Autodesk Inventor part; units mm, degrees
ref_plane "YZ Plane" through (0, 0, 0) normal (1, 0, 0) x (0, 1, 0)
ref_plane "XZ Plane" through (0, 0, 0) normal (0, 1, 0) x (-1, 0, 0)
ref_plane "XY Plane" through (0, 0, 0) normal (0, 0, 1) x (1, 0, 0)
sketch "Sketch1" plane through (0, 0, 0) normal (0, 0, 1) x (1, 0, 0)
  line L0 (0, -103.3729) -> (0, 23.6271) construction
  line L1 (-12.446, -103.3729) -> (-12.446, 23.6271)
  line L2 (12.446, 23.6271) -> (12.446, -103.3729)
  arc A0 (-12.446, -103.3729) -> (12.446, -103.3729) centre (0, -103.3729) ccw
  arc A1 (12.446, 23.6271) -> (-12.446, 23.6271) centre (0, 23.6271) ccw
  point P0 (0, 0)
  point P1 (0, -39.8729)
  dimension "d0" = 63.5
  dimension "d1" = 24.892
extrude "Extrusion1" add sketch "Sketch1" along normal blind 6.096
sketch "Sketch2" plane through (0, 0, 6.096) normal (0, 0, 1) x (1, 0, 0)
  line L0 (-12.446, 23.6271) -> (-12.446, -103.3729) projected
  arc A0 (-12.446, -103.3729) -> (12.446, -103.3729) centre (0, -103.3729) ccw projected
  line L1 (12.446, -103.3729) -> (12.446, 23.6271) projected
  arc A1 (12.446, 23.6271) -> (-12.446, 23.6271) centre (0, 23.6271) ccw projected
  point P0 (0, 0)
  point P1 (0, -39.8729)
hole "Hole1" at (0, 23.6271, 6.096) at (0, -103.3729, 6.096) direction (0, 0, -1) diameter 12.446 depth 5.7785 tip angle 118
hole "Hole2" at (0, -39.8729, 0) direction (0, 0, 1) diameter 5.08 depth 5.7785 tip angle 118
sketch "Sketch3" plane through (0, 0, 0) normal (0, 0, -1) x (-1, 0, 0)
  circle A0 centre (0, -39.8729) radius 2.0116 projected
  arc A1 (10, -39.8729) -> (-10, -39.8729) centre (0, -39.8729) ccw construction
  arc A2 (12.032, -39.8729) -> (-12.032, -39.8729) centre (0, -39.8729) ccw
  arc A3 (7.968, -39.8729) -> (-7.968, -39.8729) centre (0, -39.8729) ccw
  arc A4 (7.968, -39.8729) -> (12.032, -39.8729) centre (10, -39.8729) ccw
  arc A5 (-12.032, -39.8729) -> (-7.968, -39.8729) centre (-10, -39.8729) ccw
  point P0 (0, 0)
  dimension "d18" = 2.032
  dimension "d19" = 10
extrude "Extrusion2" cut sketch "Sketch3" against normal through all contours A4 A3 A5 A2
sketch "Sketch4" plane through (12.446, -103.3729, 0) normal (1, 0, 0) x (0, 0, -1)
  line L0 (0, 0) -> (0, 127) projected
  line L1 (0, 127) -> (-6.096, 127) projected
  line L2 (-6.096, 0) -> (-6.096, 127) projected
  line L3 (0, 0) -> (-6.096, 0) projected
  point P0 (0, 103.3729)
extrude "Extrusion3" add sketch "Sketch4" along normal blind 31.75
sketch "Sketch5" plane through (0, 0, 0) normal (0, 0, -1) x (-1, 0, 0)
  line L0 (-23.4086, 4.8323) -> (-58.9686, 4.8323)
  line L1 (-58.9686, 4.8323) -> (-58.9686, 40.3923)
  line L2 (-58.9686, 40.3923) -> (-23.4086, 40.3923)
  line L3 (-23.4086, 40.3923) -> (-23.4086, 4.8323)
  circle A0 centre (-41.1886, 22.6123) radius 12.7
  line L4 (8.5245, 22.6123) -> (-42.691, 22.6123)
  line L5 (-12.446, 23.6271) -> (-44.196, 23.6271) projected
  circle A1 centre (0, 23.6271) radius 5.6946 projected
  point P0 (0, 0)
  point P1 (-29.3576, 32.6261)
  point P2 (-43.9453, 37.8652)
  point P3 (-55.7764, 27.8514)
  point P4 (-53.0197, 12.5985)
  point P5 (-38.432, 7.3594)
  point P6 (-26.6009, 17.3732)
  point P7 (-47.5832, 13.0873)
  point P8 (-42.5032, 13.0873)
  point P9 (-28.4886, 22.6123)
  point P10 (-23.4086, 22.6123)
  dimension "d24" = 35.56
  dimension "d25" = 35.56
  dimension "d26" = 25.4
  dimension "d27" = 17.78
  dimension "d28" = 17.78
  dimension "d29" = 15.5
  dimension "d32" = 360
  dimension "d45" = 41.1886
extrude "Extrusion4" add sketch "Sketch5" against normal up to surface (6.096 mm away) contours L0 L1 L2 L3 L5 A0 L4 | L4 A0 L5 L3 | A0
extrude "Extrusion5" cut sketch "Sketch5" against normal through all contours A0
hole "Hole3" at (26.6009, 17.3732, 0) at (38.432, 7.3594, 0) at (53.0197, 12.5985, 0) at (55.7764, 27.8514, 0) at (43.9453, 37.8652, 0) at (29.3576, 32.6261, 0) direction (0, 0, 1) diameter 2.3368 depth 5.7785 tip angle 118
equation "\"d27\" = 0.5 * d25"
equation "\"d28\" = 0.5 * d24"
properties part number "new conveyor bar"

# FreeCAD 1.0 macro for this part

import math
import FreeCAD as App
import Part
import Sketcher

V = App.Vector
Q = App.Units.Quantity


def add_polygon(sketch, points):
    """Adds a closed chain of lines whose ends are joined by coincident constraints."""
    first, n = sketch.GeometryCount, len(points)
    for a, b in zip(points, points[1:] + points[:1]):
        sketch.addGeometry(Part.LineSegment(App.Vector(*a, 0), App.Vector(*b, 0)), False)
    for i in range(n):
        sketch.addConstraint(Sketcher.Constraint("Coincident", first + i, 2, first + (i + 1) % n, 1))

doc = App.newDocument("Part")
body = doc.addObject("PartDesign::Body", "Body")

# Sketch on XY plane
sketch1 = body.newObject("Sketcher::SketchObject", "Sketch")
sketch1.AttachmentSupport = (doc.getObject("XY_Plane"), [""])
sketch1.MapMode = "FlatFace"
sketch1.addGeometry(Part.LineSegment(V(-12, 24, 0), V(-12, -103, 0)), False)
sketch1.addGeometry(Part.ArcOfCircle(Part.Circle(V(0, -103, 0), V(0, 0, 1), 12), math.radians(180), math.radians(360)), False)
sketch1.addGeometry(Part.LineSegment(V(12, -103, 0), V(12, 24, 0)), False)
sketch1.addGeometry(Part.ArcOfCircle(Part.Circle(V(0, 24, 0), V(0, 0, 1), 12), math.radians(0), math.radians(180)), False)
sketch1.addConstraint(Sketcher.Constraint("Tangent", 0, 2, 1, 1))
sketch1.addConstraint(Sketcher.Constraint("Tangent", 1, 2, 2, 1))
sketch1.addConstraint(Sketcher.Constraint("Tangent", 2, 2, 3, 1))
sketch1.addConstraint(Sketcher.Constraint("Tangent", 3, 2, 0, 1))
sketch1.addConstraint(Sketcher.Constraint("Vertical", 0))
sketch1.addConstraint(Sketcher.Constraint("Vertical", 2))
sketch1.addConstraint(Sketcher.Constraint("PointOnObject", 1, 3, -2))
sketch1.addConstraint(Sketcher.Constraint("Radius", 1, Q("0.49 in")))
sketch1.addConstraint(Sketcher.Constraint("DistanceY", 0, 2, 0, 1, Q("5 in")))
sketch1.addConstraint(Sketcher.Constraint("DistanceY", 1, 3, -1, 1, Q("4.0698 in")))
pad1 = body.newObject("PartDesign::Pad", "Pad")
pad1.Profile = sketch1
pad1.Length = Q("0.24 in")

# Sketch on XY plane
sketch2 = body.newObject("Sketcher::SketchObject", "Sketch001")
sketch2.AttachmentSupport = (doc.getObject("XY_Plane"), [""])
sketch2.MapMode = "FlatFace"
sketch2.AttachmentOffset = App.Placement(V(0, 0, 0.24 * 25.4), App.Rotation())
sketch2.addGeometry(Part.Circle(V(0, 24, 0), V(0, 0, 1), 6), False)
sketch2.addGeometry(Part.Circle(V(0, -103, 0), V(0, 0, 1), 6), False)
sketch2.addConstraint(Sketcher.Constraint("Equal", 0, 1))
sketch2.addConstraint(Sketcher.Constraint("PointOnObject", 0, 3, -2))
sketch2.addConstraint(Sketcher.Constraint("PointOnObject", 1, 3, -2))
sketch2.addConstraint(Sketcher.Constraint("Diameter", 0, Q("0.49 in")))
sketch2.addConstraint(Sketcher.Constraint("DistanceY", 1, 3, 0, 3, Q("5 in")))
sketch2.addConstraint(Sketcher.Constraint("DistanceY", -1, 1, 0, 3, Q("0.9302 in")))
doc.recompute()
hole = body.newObject("PartDesign::Hole", "Hole")
hole.Profile = sketch2
hole.ThreadType = "None"
hole.Diameter = Q("0.49 in")
hole.DepthType = "Dimension"
hole.Depth = Q("0.2275 in")
hole.DrillPoint = "Angled"
hole.DrillPointAngle = 118

# Sketch on XY plane
sketch3 = body.newObject("Sketcher::SketchObject", "Sketch002")
sketch3.AttachmentSupport = (doc.getObject("XY_Plane"), [""])
sketch3.MapMode = "FlatFace"
sketch3.addGeometry(Part.Circle(V(0, -39.9, 0), V(0, 0, 1), 2.5), False)
sketch3.addConstraint(Sketcher.Constraint("PointOnObject", 0, 3, -2))
sketch3.addConstraint(Sketcher.Constraint("Diameter", 0, Q("0.2 in")))
sketch3.addConstraint(Sketcher.Constraint("DistanceY", 0, 3, -1, 1, Q("1.5698 in")))
doc.recompute()
hole2 = body.newObject("PartDesign::Hole", "Hole001")
hole2.Profile = sketch3
hole2.ThreadType = "None"
hole2.Diameter = Q("0.2 in")
hole2.DepthType = "Dimension"
hole2.Depth = Q("0.2275 in")
hole2.DrillPoint = "Angled"
hole2.DrillPointAngle = 118
hole2.Reversed = True

# Sketch on XY plane
sketch4 = body.newObject("Sketcher::SketchObject", "Sketch003")
sketch4.AttachmentSupport = (doc.getObject("XY_Plane"), [""])
sketch4.MapMode = "FlatFace"
sketch4.addGeometry(Part.ArcOfCircle(Part.Circle(V(-10, -39.9, 0), V(0, 0, 1), 2), math.radians(180), math.radians(360)), False)
sketch4.addGeometry(Part.ArcOfCircle(Part.Circle(V(0, -39.9, 0), V(0, 0, 1), 12), math.radians(0), math.radians(180)), False)
sketch4.addGeometry(Part.ArcOfCircle(Part.Circle(V(10, -39.9, 0), V(0, 0, 1), 2), math.radians(180), math.radians(360)), False)
sketch4.addGeometry(Part.ArcOfCircle(Part.Circle(V(0, -39.9, 0), V(0, 0, 1), 8), math.radians(0), math.radians(180)), False)
sketch4.addConstraint(Sketcher.Constraint("Tangent", 0, 1, 1, 2))
sketch4.addConstraint(Sketcher.Constraint("Tangent", 1, 1, 2, 2))
sketch4.addConstraint(Sketcher.Constraint("Tangent", 2, 1, 3, 1))
sketch4.addConstraint(Sketcher.Constraint("Tangent", 3, 2, 0, 2))
sketch4.addConstraint(Sketcher.Constraint("Coincident", 3, 3, 1, 3))
sketch4.addConstraint(Sketcher.Constraint("Symmetric", 0, 3, 2, 3, -2))
sketch4.addConstraint(Sketcher.Constraint("Horizontal", 0, 3, 1, 3))
sketch4.addConstraint(Sketcher.Constraint("Radius", 0, Q("0.08 in")))
sketch4.addConstraint(Sketcher.Constraint("DistanceX", 0, 3, -1, 1, Q("0.3937 in")))
sketch4.addConstraint(Sketcher.Constraint("DistanceY", 0, 3, -1, 1, Q("1.5698 in")))
pocket1 = body.newObject("PartDesign::Pocket", "Pocket")
pocket1.Profile = sketch4
pocket1.Type = "ThroughAll"
pocket1.Reversed = True

# Sketch on YZ plane
sketch5 = body.newObject("Sketcher::SketchObject", "Sketch004")
sketch5.AttachmentSupport = (doc.getObject("YZ_Plane"), [""])
sketch5.MapMode = "FlatFace"
sketch5.AttachmentOffset = App.Placement(V(0, 0, 0.49 * 25.4), App.Rotation())
add_polygon(sketch5, [(-103, 6), (-103, 0), (24, 0), (24, 6)])  # lines 0-3
sketch5.addConstraint(Sketcher.Constraint("Vertical", 0))
sketch5.addConstraint(Sketcher.Constraint("Horizontal", 1))
sketch5.addConstraint(Sketcher.Constraint("Vertical", 2))
sketch5.addConstraint(Sketcher.Constraint("Horizontal", 3))
sketch5.addConstraint(Sketcher.Constraint("PointOnObject", 0, 2, -1))
sketch5.addConstraint(Sketcher.Constraint("DistanceX", 1, 1, 1, 2, Q("5 in")))
sketch5.addConstraint(Sketcher.Constraint("DistanceY", 0, 2, 0, 1, Q("0.24 in")))
sketch5.addConstraint(Sketcher.Constraint("DistanceX", 0, 2, -1, 1, Q("4.0698 in")))
pad2 = body.newObject("PartDesign::Pad", "Pad001")
pad2.Profile = sketch5
pad2.Length = Q("1.25 in")

# Sketch on XY plane
sketch6 = body.newObject("Sketcher::SketchObject", "Sketch005")
sketch6.AttachmentSupport = (doc.getObject("XY_Plane"), [""])
sketch6.MapMode = "FlatFace"
add_polygon(sketch6, [(59, 5), (23, 5), (23, 40), (59, 40)])  # lines 0-3
sketch6.addConstraint(Sketcher.Constraint("Horizontal", 0))
sketch6.addConstraint(Sketcher.Constraint("Vertical", 1))
sketch6.addConstraint(Sketcher.Constraint("Horizontal", 2))
sketch6.addConstraint(Sketcher.Constraint("Vertical", 3))
sketch6.addConstraint(Sketcher.Constraint("Equal", 2, 1))
sketch6.addConstraint(Sketcher.Constraint("DistanceX", 0, 2, 0, 1, Q("1.4 in")))
sketch6.addConstraint(Sketcher.Constraint("DistanceX", -1, 1, 0, 2, Q("0.9216 in")))
sketch6.addConstraint(Sketcher.Constraint("DistanceY", -1, 1, 0, 2, Q("4.8323 mm")))
pad3 = body.newObject("PartDesign::Pad", "Pad002")
pad3.Profile = sketch6
pad3.Length = Q("0.24 in")

# Sketch on XY plane
sketch7 = body.newObject("Sketcher::SketchObject", "Sketch006")
sketch7.AttachmentSupport = (doc.getObject("XY_Plane"), [""])
sketch7.MapMode = "FlatFace"
sketch7.addGeometry(Part.Circle(V(41, 23, 0), V(0, 0, 1), 13), False)
sketch7.addConstraint(Sketcher.Constraint("Diameter", 0, Q("1 in")))
sketch7.addConstraint(Sketcher.Constraint("DistanceX", -1, 1, 0, 3, Q("1.6216 in")))
sketch7.addConstraint(Sketcher.Constraint("DistanceY", -1, 1, 0, 3, Q("22.6123 mm")))
pocket2 = body.newObject("PartDesign::Pocket", "Pocket001")
pocket2.Profile = sketch7
pocket2.Type = "ThroughAll"
pocket2.Reversed = True

# Sketch on XY plane
sketch8 = body.newObject("Sketcher::SketchObject", "Sketch007")
sketch8.AttachmentSupport = (doc.getObject("XY_Plane"), [""])
sketch8.MapMode = "FlatFace"
sketch8.addGeometry(Part.Circle(V(26.6, 17.4, 0), V(0, 0, 1), 1.2), False)
sketch8.addGeometry(Part.Circle(V(38.4, 7.4, 0), V(0, 0, 1), 1.2), False)
sketch8.addGeometry(Part.Circle(V(53, 12.6, 0), V(0, 0, 1), 1.2), False)
sketch8.addGeometry(Part.Circle(V(55.8, 27.9, 0), V(0, 0, 1), 1.2), False)
sketch8.addGeometry(Part.Circle(V(43.9, 37.9, 0), V(0, 0, 1), 1.2), False)
sketch8.addGeometry(Part.Circle(V(29.4, 32.6, 0), V(0, 0, 1), 1.2), False)
sketch8.addConstraint(Sketcher.Constraint("Equal", 0, 1))
sketch8.addConstraint(Sketcher.Constraint("Equal", 1, 2))
sketch8.addConstraint(Sketcher.Constraint("Equal", 2, 3))
sketch8.addConstraint(Sketcher.Constraint("Equal", 3, 4))
sketch8.addConstraint(Sketcher.Constraint("Equal", 4, 5))
sketch8.addConstraint(Sketcher.Constraint("Diameter", 0, Q("0.092 in")))
sketch8.addConstraint(Sketcher.Constraint("DistanceY", -1, 1, 2, 3, Q("0.496 in")))
sketch8.addConstraint(Sketcher.Constraint("DistanceX", -1, 1, 2, 3, Q("2.0874 in")))
sketch8.addConstraint(Sketcher.Constraint("DistanceY", -1, 1, 3, 3, Q("1.0965 in")))
sketch8.addConstraint(Sketcher.Constraint("DistanceX", -1, 1, 5, 3, Q("1.1558 in")))
sketch8.addConstraint(Sketcher.Constraint("DistanceY", -1, 1, 5, 3, Q("1.2845 in")))
sketch8.addConstraint(Sketcher.Constraint("DistanceX", 0, 3, 1, 3, Q("0.4658 in")))
sketch8.addConstraint(Sketcher.Constraint("DistanceX", 0, 3, 2, 3, Q("1.0401 in")))
sketch8.addConstraint(Sketcher.Constraint("DistanceX", 4, 3, 3, 3, Q("0.4658 in")))
sketch8.addConstraint(Sketcher.Constraint("DistanceY", 0, 3, 5, 3, Q("0.6005 in")))
sketch8.addConstraint(Sketcher.Constraint("DistanceX", 5, 3, 3, 3, Q("1.0401 in")))
sketch8.addConstraint(Sketcher.Constraint("DistanceY", -1, 1, 1, 3, Q("7.3594 mm")))
sketch8.addConstraint(Sketcher.Constraint("DistanceY", -1, 1, 4, 3, Q("37.8652 mm")))
doc.recompute()
hole3 = body.newObject("PartDesign::Hole", "Hole002")
hole3.Profile = sketch8
hole3.ThreadType = "None"
hole3.Diameter = Q("0.092 in")
hole3.DepthType = "Dimension"
hole3.Depth = Q("0.2275 in")
hole3.DrillPoint = "Angled"
hole3.DrillPointAngle = 118
hole3.Reversed = True

doc.recompute()
